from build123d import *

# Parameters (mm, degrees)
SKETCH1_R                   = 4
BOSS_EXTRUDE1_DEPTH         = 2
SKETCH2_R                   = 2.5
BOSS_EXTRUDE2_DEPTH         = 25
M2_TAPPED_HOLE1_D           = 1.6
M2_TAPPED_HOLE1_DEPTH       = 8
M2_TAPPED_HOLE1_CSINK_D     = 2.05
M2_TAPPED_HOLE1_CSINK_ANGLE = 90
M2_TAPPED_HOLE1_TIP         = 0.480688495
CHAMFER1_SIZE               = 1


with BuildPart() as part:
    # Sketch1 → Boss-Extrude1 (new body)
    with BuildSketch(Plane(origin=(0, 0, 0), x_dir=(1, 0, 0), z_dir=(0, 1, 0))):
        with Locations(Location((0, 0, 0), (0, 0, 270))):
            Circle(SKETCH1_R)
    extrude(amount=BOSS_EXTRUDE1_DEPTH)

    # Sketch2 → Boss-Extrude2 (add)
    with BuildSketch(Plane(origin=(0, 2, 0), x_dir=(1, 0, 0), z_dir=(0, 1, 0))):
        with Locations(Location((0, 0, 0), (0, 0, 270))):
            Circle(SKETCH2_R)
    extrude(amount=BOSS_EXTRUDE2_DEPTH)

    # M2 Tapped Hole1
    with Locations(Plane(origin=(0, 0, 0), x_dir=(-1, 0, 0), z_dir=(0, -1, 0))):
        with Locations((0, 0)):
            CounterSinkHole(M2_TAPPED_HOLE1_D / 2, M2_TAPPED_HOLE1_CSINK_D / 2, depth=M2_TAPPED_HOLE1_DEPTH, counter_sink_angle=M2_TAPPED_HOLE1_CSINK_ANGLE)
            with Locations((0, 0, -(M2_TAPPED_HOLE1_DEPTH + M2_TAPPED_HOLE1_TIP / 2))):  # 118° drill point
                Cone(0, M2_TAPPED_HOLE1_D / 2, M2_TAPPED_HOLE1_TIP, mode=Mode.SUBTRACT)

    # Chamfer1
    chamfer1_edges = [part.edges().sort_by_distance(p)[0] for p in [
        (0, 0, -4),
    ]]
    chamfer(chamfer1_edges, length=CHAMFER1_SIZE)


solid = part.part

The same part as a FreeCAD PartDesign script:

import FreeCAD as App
import Part
import Sketcher


def edges_at(feature, points):
    """Names of the edges that pass closest to the given points."""
    edges = feature.Shape.Edges
    near = lambda p: min(range(len(edges)), key=lambda i: edges[i].distToShape(Part.Vertex(*p))[0])
    return sorted({f"Edge{near(p) + 1}" for p in points})

doc = App.newDocument("Part")
params = doc.addObject("Spreadsheet::Sheet", "Params")
for row, (alias, value) in enumerate([
    ("sketch1_diameter", "8 mm"),
    ("pad1_length", "2 mm"),
    ("sketch2_diameter", "5 mm"),
    ("pad2_length", "25 mm"),
    ("sketch3_diameter", "1.6 mm"),
    ("hole_diameter", "1.6 mm"),
    ("hole_depth", "8 mm"),
    ("hole_csink_diameter", "2.05 mm"),
    ("chamfer_size", "1 mm"),
], start=1):
    params.set(f"A{row}", alias)
    params.set(f"B{row}", "=" + value)
    params.setAlias(f"B{row}", alias)

body = doc.addObject("PartDesign::Body", "Body")

sketch1 = body.newObject("Sketcher::SketchObject", "Sketch")
sketch1.AttachmentSupport = (doc.getObject("XZ_Plane"), [""])
sketch1.MapMode = "FlatFace"
sketch1.addGeometry(Part.Circle(App.Vector(0, 0, 0), App.Vector(0, 0, 1), 4), False)
sketch1.addConstraint(Sketcher.Constraint("Coincident", 0, 3, -1, 1))
sketch1.addConstraint(Sketcher.Constraint("Diameter", 0, 8.0))
sketch1.setExpression("Constraints[1]", "Params.sketch1_diameter")
pad1 = body.newObject("PartDesign::Pad", "Pad")
pad1.Profile = sketch1
pad1.setExpression("Length", "Params.pad1_length")
pad1.Reversed = True

sketch2 = body.newObject("Sketcher::SketchObject", "Sketch001")
sketch2.AttachmentSupport = (doc.getObject("XZ_Plane"), [""])
sketch2.MapMode = "FlatFace"
sketch2.AttachmentOffset = App.Placement(App.Vector(0, 0, -2), App.Rotation())
sketch2.addGeometry(Part.Circle(App.Vector(0, 0, 0), App.Vector(0, 0, 1), 2.5), False)
sketch2.addConstraint(Sketcher.Constraint("Coincident", 0, 3, -1, 1))
sketch2.addConstraint(Sketcher.Constraint("Diameter", 0, 5.0))
sketch2.setExpression("Constraints[1]", "Params.sketch2_diameter")
pad2 = body.newObject("PartDesign::Pad", "Pad001")
pad2.Profile = sketch2
pad2.setExpression("Length", "Params.pad2_length")
pad2.Reversed = True

sketch3 = body.newObject("Sketcher::SketchObject", "Sketch002")
sketch3.AttachmentSupport = (doc.getObject("XZ_Plane"), [""])
sketch3.MapMode = "FlatFace"
sketch3.addGeometry(Part.Circle(App.Vector(0, 0, 0), App.Vector(0, 0, 1), 0.8), False)
sketch3.addConstraint(Sketcher.Constraint("Coincident", 0, 3, -1, 1))
sketch3.addConstraint(Sketcher.Constraint("Diameter", 0, 1.6))
sketch3.setExpression("Constraints[1]", "Params.sketch3_diameter")
doc.recompute()
hole = body.newObject("PartDesign::Hole", "Hole")
hole.Profile = sketch3
hole.ThreadType = "None"
hole.setExpression("Diameter", "Params.hole_diameter")
hole.DepthType = "Dimension"
hole.setExpression("Depth", "Params.hole_depth")
hole.DrillPoint = "Angled"
hole.DrillPointAngle = 118
hole.HoleCutType = "Countersink"
hole.setExpression("HoleCutDiameter", "Params.hole_csink_diameter")
hole.HoleCutCountersinkAngle = 90
doc.recompute()

chamfer = body.newObject("PartDesign::Chamfer", "Chamfer")
chamfer.Base = (hole, edges_at(hole, [(0, 0, -4)]))
chamfer.setExpression("Size", "Params.chamfer_size")

doc.recompute()
